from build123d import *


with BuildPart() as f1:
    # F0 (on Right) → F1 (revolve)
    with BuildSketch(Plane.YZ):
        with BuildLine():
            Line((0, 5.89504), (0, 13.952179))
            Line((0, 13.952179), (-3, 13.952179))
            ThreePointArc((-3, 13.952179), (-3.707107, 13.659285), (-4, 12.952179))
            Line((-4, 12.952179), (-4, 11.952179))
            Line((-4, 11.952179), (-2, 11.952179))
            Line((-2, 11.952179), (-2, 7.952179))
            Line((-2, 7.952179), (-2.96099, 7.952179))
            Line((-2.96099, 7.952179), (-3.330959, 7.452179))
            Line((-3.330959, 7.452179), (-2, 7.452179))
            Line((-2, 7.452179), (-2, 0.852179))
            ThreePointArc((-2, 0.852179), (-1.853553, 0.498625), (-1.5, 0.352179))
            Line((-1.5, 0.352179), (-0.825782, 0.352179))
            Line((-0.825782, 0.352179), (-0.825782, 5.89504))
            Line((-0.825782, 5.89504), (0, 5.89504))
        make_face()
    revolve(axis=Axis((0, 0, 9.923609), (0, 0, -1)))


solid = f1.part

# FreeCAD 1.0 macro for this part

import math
import FreeCAD as App
import Part
import Sketcher
from FreeCAD import Vector

doc = App.newDocument("Part")
params = doc.addObject("Spreadsheet::Sheet", "Params")
for row, (alias, value) in enumerate([
    ("sketch1_radius", "1.000001 mm"),
    ("sketch1_radius2", "0.5 mm"),
    ("sketch1_width", "3 mm"),
    ("sketch1_width2", "2 mm"),
    ("sketch1_height", "1 mm"),
    ("revolution_angle", "360 deg"),
], start=1):
    params.set(f"A{row}", alias)
    params.set(f"B{row}", "=" + value)
    params.setAlias(f"B{row}", alias)

body = doc.addObject("PartDesign::Body", "Body")

sketch1 = body.newObject("Sketcher::SketchObject", "Sketch")
sketch1.AttachmentSupport = (doc.getObject("YZ_Plane"), [""])
sketch1.MapMode = "FlatFace"
sketch1.addGeometry(Part.LineSegment(Vector(0, 5.89504, 0), Vector(0, 13.952179, 0)), False)
sketch1.addGeometry(Part.LineSegment(Vector(0, 13.952179, 0), Vector(-3, 13.952179, 0)), False)
sketch1.addGeometry(Part.ArcOfCircle(Part.Circle(Vector(-2.999999, 12.952178, 0), Vector(0, 0, 1), 1.000001), math.radians(90.000055), math.radians(179.999945)), False)
sketch1.addGeometry(Part.LineSegment(Vector(-4, 12.952179, 0), Vector(-4, 11.952179, 0)), False)
sketch1.addGeometry(Part.LineSegment(Vector(-4, 11.952179, 0), Vector(-2, 11.952179, 0)), False)
sketch1.addGeometry(Part.LineSegment(Vector(-2, 11.952179, 0), Vector(-2, 7.952179, 0)), False)
sketch1.addGeometry(Part.LineSegment(Vector(-2, 7.952179, 0), Vector(-2.96099, 7.952179, 0)), False)
sketch1.addGeometry(Part.LineSegment(Vector(-2.96099, 7.952179, 0), Vector(-3.330959, 7.452179, 0)), False)
sketch1.addGeometry(Part.LineSegment(Vector(-3.330959, 7.452179, 0), Vector(-2, 7.452179, 0)), False)
sketch1.addGeometry(Part.LineSegment(Vector(-2, 7.452179, 0), Vector(-2, 0.852179, 0)), False)
sketch1.addGeometry(Part.ArcOfCircle(Part.Circle(Vector(-1.5, 0.852179, 0), Vector(0, 0, 1), 0.5), math.radians(179.999957), math.radians(270.000043)), False)
sketch1.addGeometry(Part.LineSegment(Vector(-1.5, 0.352179, 0), Vector(-0.825782, 0.352179, 0)), False)
sketch1.addGeometry(Part.LineSegment(Vector(-0.825782, 0.352179, 0), Vector(-0.825782, 5.89504, 0)), False)
sketch1.addGeometry(Part.LineSegment(Vector(-0.825782, 5.89504, 0), Vector(0, 5.89504, 0)), False)
sketch1.addConstraint(Sketcher.Constraint("Coincident", 0, 2, 1, 1))
sketch1.addConstraint(Sketcher.Constraint("Tangent", 1, 2, 2, 1))
sketch1.addConstraint(Sketcher.Constraint("Tangent", 2, 2, 3, 1))
sketch1.addConstraint(Sketcher.Constraint("Coincident", 3, 2, 4, 1))
sketch1.addConstraint(Sketcher.Constraint("Coincident", 4, 2, 5, 1))
sketch1.addConstraint(Sketcher.Constraint("Coincident", 5, 2, 6, 1))
sketch1.addConstraint(Sketcher.Constraint("Coincident", 6, 2, 7, 1))
sketch1.addConstraint(Sketcher.Constraint("Coincident", 7, 2, 8, 1))
sketch1.addConstraint(Sketcher.Constraint("Coincident", 8, 2, 9, 1))
sketch1.addConstraint(Sketcher.Constraint("Tangent", 9, 2, 10, 1))
sketch1.addConstraint(Sketcher.Constraint("Tangent", 10, 2, 11, 1))
sketch1.addConstraint(Sketcher.Constraint("Coincident", 11, 2, 12, 1))
sketch1.addConstraint(Sketcher.Constraint("Coincident", 12, 2, 13, 1))
sketch1.addConstraint(Sketcher.Constraint("Coincident", 13, 2, 0, 1))
sketch1.addConstraint(Sketcher.Constraint("Vertical", 0))
sketch1.addConstraint(Sketcher.Constraint("Horizontal", 1))
sketch1.addConstraint(Sketcher.Constraint("Vertical", 3))
sketch1.addConstraint(Sketcher.Constraint("Horizontal", 4))
sketch1.addConstraint(Sketcher.Constraint("Vertical", 5))
sketch1.addConstraint(Sketcher.Constraint("Horizontal", 6))
sketch1.addConstraint(Sketcher.Constraint("Horizontal", 8))
sketch1.addConstraint(Sketcher.Constraint("Vertical", 9))
sketch1.addConstraint(Sketcher.Constraint("Horizontal", 11))
sketch1.addConstraint(Sketcher.Constraint("Vertical", 12))
sketch1.addConstraint(Sketcher.Constraint("Horizontal", 13))
sketch1.addConstraint(Sketcher.Constraint("PointOnObject", 0, 2, -2))
sketch1.addConstraint(Sketcher.Constraint("Vertical", 5, 2, 8, 2))
sketch1.addConstraint(Sketcher.Constraint("Radius", 2, 1.000001))
sketch1.addConstraint(Sketcher.Constraint("Radius", 10, 0.5))
sketch1.addConstraint(Sketcher.Constraint("DistanceX", 1, 2, 1, 1, 3.0))
sketch1.addConstraint(Sketcher.Constraint("DistanceX", 4, 1, 4, 2, 2.0))
sketch1.addConstraint(Sketcher.Constraint("DistanceY", 3, 2, 3, 1, 1.0))
sketch1.addConstraint(Sketcher.Constraint("DistanceY", 5, 2, 5, 1, 4.0))
sketch1.addConstraint(Sketcher.Constraint("DistanceY", 9, 2, 9, 1, 6.6))
sketch1.addConstraint(Sketcher.Constraint("DistanceY", 10, 3, 2, 3, 12.099999))
sketch1.addConstraint(Sketcher.Constraint("DistanceX", 6, 2, 6, 1, 0.96099))
sketch1.addConstraint(Sketcher.Constraint("DistanceX", 8, 1, 8, 2, 1.330959))
sketch1.addConstraint(Sketcher.Constraint("DistanceY", 0, 1, 0, 2, 8.057139))
sketch1.addConstraint(Sketcher.Constraint("DistanceX", 11, 1, 11, 2, 0.674218))
sketch1.addConstraint(Sketcher.Constraint("DistanceY", -1, 1, 2, 3, 12.952178))
sketch1.setExpression("Constraints[27]", "Params.sketch1_radius")
sketch1.setExpression("Constraints[28]", "Params.sketch1_radius2")
sketch1.setExpression("Constraints[29]", "Params.sketch1_width")
sketch1.setExpression("Constraints[30]", "Params.sketch1_width2")
sketch1.setExpression("Constraints[31]", "Params.sketch1_height")
revolution = body.newObject("PartDesign::Revolution", "Revolution")
revolution.Profile = sketch1
revolution.ReferenceAxis = (sketch1, ["V_Axis"])
revolution.setExpression("Angle", "Params.revolution_angle")

doc.recompute()
